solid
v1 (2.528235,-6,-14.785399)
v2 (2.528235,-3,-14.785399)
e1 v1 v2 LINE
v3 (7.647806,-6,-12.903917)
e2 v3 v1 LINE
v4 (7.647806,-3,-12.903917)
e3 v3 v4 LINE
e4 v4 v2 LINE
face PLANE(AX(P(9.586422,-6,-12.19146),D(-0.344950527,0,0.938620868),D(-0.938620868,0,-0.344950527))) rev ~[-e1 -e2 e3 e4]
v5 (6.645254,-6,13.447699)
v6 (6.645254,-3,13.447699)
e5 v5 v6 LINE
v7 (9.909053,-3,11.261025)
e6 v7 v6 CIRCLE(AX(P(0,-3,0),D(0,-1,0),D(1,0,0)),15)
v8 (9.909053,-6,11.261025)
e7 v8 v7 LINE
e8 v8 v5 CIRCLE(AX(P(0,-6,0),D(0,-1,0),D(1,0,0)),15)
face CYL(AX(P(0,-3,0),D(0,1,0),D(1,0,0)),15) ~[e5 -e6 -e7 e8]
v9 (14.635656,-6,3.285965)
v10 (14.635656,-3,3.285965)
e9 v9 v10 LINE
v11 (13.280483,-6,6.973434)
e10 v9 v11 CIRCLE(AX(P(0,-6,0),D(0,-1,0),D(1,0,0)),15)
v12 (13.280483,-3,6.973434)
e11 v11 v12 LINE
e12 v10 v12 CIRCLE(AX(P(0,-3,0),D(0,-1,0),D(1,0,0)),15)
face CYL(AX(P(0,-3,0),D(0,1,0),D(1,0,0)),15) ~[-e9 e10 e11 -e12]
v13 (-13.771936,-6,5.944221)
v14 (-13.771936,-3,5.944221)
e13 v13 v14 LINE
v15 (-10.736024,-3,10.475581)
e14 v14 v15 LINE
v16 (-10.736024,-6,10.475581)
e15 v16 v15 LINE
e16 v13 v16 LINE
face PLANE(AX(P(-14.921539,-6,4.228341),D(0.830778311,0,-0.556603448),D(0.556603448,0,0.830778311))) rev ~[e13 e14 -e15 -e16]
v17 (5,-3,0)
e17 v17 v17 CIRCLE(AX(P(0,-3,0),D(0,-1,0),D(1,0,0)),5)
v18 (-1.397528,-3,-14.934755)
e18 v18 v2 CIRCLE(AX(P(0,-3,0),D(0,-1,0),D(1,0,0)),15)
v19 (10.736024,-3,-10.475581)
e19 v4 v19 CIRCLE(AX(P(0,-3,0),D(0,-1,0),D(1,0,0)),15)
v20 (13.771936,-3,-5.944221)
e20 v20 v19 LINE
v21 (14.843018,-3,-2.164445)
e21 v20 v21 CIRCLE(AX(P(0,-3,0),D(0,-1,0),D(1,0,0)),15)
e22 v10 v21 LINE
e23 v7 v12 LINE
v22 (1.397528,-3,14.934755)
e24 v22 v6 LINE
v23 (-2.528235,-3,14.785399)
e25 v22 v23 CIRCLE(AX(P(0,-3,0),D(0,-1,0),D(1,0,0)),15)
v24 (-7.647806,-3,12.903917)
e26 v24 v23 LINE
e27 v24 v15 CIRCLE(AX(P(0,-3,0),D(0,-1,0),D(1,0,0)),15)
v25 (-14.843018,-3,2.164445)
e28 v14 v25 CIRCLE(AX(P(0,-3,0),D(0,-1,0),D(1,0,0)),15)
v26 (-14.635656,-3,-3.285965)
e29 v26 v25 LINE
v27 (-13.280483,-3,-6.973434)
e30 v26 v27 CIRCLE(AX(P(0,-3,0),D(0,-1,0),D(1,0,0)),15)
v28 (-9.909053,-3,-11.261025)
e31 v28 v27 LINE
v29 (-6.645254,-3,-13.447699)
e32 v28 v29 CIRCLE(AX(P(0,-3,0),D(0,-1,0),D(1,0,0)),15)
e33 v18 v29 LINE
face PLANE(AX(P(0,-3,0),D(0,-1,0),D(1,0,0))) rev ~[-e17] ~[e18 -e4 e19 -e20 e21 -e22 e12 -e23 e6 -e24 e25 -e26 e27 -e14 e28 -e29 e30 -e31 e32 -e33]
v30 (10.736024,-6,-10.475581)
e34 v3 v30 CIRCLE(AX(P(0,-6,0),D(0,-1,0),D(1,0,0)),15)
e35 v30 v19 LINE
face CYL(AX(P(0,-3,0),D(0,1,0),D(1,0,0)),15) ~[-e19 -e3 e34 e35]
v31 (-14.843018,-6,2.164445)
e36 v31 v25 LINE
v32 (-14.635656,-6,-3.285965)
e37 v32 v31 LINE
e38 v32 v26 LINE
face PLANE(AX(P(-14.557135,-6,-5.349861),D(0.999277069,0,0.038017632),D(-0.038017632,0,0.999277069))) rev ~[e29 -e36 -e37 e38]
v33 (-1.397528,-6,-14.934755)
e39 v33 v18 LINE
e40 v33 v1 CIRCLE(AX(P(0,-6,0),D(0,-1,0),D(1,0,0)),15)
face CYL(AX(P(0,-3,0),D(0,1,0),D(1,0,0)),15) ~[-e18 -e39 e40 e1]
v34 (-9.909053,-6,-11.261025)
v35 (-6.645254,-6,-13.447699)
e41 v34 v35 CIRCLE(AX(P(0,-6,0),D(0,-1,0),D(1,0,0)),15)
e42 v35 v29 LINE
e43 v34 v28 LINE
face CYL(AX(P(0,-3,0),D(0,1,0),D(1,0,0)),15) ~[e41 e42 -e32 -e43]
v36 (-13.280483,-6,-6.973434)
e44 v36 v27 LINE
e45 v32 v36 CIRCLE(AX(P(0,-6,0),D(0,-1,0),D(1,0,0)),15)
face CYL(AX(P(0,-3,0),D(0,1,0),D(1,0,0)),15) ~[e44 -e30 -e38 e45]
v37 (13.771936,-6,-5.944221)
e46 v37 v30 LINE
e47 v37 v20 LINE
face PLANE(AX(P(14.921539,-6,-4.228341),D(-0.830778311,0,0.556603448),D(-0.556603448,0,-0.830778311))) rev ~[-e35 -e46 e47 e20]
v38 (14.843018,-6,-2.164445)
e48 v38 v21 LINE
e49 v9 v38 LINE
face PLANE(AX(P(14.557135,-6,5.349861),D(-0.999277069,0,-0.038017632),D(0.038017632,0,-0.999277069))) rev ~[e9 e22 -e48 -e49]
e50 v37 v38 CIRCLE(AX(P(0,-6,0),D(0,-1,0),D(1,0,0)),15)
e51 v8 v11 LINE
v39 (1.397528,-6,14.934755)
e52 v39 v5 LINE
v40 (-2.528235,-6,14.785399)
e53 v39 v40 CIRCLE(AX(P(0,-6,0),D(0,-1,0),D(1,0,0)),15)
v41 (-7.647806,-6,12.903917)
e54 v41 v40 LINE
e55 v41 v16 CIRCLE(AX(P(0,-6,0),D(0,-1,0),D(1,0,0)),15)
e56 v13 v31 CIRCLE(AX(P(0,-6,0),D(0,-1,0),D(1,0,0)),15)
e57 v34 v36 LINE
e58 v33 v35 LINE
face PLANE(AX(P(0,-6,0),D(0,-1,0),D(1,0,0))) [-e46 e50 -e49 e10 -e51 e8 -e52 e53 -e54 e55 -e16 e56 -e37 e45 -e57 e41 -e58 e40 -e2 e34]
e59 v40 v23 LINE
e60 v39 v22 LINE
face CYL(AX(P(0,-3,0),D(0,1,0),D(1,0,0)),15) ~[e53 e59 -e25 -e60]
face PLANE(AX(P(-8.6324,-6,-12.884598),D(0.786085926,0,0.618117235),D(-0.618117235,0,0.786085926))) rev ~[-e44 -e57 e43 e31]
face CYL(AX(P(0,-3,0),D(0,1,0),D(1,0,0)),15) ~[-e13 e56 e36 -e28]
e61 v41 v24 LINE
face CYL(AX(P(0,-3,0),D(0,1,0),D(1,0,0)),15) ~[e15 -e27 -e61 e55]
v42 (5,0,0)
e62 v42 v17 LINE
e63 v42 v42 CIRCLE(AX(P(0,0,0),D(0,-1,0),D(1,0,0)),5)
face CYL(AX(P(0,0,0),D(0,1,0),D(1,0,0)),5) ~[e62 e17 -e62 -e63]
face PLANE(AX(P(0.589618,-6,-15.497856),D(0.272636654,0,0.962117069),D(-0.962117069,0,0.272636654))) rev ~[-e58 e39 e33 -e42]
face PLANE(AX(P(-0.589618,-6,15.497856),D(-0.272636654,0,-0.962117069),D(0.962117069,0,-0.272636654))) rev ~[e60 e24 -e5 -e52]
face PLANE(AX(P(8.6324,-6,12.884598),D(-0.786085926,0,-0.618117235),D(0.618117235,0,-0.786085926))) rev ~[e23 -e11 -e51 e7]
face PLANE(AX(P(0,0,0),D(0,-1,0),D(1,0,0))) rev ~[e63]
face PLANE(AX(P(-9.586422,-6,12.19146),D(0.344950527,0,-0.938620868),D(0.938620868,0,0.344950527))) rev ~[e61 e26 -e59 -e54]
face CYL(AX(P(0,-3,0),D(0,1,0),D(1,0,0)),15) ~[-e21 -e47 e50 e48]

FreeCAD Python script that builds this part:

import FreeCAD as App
import Part
import Sketcher

doc = App.newDocument("Part")
params = doc.addObject("Spreadsheet::Sheet", "Params")
for row, (alias, value) in enumerate([
    ("sketch1_diameter", "10 mm"),
    ("pad1_length", "3 mm"),
    ("sketch2_diameter", "30 mm"),
    ("pad2_length", "3 mm"),
    ("pocket1_length", "25 mm"),
], start=1):
    params.set(f"A{row}", alias)
    params.set(f"B{row}", "=" + value)
    params.setAlias(f"B{row}", alias)

body = doc.addObject("PartDesign::Body", "Body")

sketch1 = body.newObject("Sketcher::SketchObject", "Sketch")
sketch1.AttachmentSupport = (doc.getObject("XZ_Plane"), [""])
sketch1.MapMode = "FlatFace"
sketch1.addGeometry(Part.Circle(App.Vector(0, 0, 0), App.Vector(0, 0, 1), 5), False)
sketch1.addConstraint([
    Sketcher.Constraint("Coincident", 0, 3, -1, 1),
    Sketcher.Constraint("Diameter", 0, 10.0),
])
sketch1.setExpression("Constraints[1]", "Params.sketch1_diameter")
pad1 = body.newObject("PartDesign::Pad", "Pad")
pad1.Profile = sketch1
pad1.setExpression("Length", "Params.pad1_length")

sketch2 = body.newObject("Sketcher::SketchObject", "Sketch001")
sketch2.AttachmentSupport = (doc.getObject("XZ_Plane"), [""])
sketch2.MapMode = "FlatFace"
sketch2.AttachmentOffset = App.Placement(App.Vector(0, 0, 3), App.Rotation())
sketch2.addGeometry(Part.Circle(App.Vector(0, 0, 0), App.Vector(0, 0, 1), 15), False)
sketch2.addConstraint([
    Sketcher.Constraint("Coincident", 0, 3, -1, 1),
    Sketcher.Constraint("Diameter", 0, 30.0),
])
sketch2.setExpression("Constraints[1]", "Params.sketch2_diameter")
pad2 = body.newObject("PartDesign::Pad", "Pad001")
pad2.Profile = sketch2
pad2.setExpression("Length", "Params.pad2_length")

sketch3 = body.newObject("Sketcher::SketchObject", "Sketch002")
sketch3.AttachmentSupport = (doc.getObject("XZ_Plane"), [""])
sketch3.MapMode = "FlatFace"
sketch3.AttachmentOffset = App.Placement(App.Vector(0, 0, 6), App.Rotation())
sketch3.addGeometry([
    Part.Circle(App.Vector(0, 0, 0), App.Vector(0, 0, 1), 17),
    Part.LineSegment(App.Vector(-15, 4, 0), App.Vector(-10, 12, 0)),
    Part.LineSegment(App.Vector(-10, 12, 0), App.Vector(-1, 15, 0)),
    Part.LineSegment(App.Vector(-1, 15, 0), App.Vector(9, 13, 0)),
    Part.LineSegment(App.Vector(9, 13, 0), App.Vector(15, 5, 0)),
    Part.LineSegment(App.Vector(15, 5, 0), App.Vector(15, -4, 0)),
    Part.LineSegment(App.Vector(15, -4, 0), App.Vector(10, -12, 0)),
    Part.LineSegment(App.Vector(10, -12, 0), App.Vector(1, -15, 0)),
    Part.LineSegment(App.Vector(1, -15, 0), App.Vector(-9, -13, 0)),
    Part.LineSegment(App.Vector(-9, -13, 0), App.Vector(-15, -5, 0)),
    Part.LineSegment(App.Vector(-15, -5, 0), App.Vector(-15, 4, 0)),
], False)
sketch3.addConstraint([
    Sketcher.Constraint("Coincident", 1, 2, 2, 1),
    Sketcher.Constraint("Coincident", 2, 2, 3, 1),
    Sketcher.Constraint("Coincident", 3, 2, 4, 1),
    Sketcher.Constraint("Coincident", 4, 2, 5, 1),
    Sketcher.Constraint("Coincident", 5, 2, 6, 1),
    Sketcher.Constraint("Coincident", 6, 2, 7, 1),
    Sketcher.Constraint("Coincident", 7, 2, 8, 1),
    Sketcher.Constraint("Coincident", 8, 2, 9, 1),
    Sketcher.Constraint("Coincident", 9, 2, 10, 1),
    Sketcher.Constraint("Coincident", 10, 2, 1, 1),
    Sketcher.Constraint("Coincident", 0, 3, -1, 1),
    Sketcher.Constraint("Symmetric", 1, 2, 6, 2, -1, 1),
    Sketcher.Constraint("Symmetric", 2, 2, 7, 2, -1, 1),
    Sketcher.Constraint("Symmetric", 3, 2, 8, 2, -1, 1),
    Sketcher.Constraint("Symmetric", 4, 2, 9, 2, -1, 1),
    Sketcher.Constraint("Symmetric", 5, 2, 10, 2, -1, 1),
    Sketcher.Constraint("Equal", 1, 2),
    Sketcher.Constraint("Equal", 2, 3),
    Sketcher.Constraint("Equal", 3, 4),
    Sketcher.Constraint("Equal", 4, 5),
    Sketcher.Constraint("Diameter", 0, 34.44317),
    Sketcher.Constraint("DistanceX", -1, 1, 3, 2, 8.6324),
    Sketcher.Constraint("DistanceY", 4, 2, 1, 2, 6.841599),
    Sketcher.Constraint("DistanceY", 5, 2, 1, 2, 16.419801),
    Sketcher.Constraint("Distance", 1, 9.585131),
    Sketcher.Constraint("DistanceY", -1, 1, 1, 2, 12.19146),
    Sketcher.Constraint("DistanceX", -1, 1, 5, 2, 14.921539),
])
pocket1 = body.newObject("PartDesign::Pocket", "Pocket")
pocket1.Profile = sketch3
pocket1.setExpression("Length", "Params.pocket1_length")

doc.recompute()
